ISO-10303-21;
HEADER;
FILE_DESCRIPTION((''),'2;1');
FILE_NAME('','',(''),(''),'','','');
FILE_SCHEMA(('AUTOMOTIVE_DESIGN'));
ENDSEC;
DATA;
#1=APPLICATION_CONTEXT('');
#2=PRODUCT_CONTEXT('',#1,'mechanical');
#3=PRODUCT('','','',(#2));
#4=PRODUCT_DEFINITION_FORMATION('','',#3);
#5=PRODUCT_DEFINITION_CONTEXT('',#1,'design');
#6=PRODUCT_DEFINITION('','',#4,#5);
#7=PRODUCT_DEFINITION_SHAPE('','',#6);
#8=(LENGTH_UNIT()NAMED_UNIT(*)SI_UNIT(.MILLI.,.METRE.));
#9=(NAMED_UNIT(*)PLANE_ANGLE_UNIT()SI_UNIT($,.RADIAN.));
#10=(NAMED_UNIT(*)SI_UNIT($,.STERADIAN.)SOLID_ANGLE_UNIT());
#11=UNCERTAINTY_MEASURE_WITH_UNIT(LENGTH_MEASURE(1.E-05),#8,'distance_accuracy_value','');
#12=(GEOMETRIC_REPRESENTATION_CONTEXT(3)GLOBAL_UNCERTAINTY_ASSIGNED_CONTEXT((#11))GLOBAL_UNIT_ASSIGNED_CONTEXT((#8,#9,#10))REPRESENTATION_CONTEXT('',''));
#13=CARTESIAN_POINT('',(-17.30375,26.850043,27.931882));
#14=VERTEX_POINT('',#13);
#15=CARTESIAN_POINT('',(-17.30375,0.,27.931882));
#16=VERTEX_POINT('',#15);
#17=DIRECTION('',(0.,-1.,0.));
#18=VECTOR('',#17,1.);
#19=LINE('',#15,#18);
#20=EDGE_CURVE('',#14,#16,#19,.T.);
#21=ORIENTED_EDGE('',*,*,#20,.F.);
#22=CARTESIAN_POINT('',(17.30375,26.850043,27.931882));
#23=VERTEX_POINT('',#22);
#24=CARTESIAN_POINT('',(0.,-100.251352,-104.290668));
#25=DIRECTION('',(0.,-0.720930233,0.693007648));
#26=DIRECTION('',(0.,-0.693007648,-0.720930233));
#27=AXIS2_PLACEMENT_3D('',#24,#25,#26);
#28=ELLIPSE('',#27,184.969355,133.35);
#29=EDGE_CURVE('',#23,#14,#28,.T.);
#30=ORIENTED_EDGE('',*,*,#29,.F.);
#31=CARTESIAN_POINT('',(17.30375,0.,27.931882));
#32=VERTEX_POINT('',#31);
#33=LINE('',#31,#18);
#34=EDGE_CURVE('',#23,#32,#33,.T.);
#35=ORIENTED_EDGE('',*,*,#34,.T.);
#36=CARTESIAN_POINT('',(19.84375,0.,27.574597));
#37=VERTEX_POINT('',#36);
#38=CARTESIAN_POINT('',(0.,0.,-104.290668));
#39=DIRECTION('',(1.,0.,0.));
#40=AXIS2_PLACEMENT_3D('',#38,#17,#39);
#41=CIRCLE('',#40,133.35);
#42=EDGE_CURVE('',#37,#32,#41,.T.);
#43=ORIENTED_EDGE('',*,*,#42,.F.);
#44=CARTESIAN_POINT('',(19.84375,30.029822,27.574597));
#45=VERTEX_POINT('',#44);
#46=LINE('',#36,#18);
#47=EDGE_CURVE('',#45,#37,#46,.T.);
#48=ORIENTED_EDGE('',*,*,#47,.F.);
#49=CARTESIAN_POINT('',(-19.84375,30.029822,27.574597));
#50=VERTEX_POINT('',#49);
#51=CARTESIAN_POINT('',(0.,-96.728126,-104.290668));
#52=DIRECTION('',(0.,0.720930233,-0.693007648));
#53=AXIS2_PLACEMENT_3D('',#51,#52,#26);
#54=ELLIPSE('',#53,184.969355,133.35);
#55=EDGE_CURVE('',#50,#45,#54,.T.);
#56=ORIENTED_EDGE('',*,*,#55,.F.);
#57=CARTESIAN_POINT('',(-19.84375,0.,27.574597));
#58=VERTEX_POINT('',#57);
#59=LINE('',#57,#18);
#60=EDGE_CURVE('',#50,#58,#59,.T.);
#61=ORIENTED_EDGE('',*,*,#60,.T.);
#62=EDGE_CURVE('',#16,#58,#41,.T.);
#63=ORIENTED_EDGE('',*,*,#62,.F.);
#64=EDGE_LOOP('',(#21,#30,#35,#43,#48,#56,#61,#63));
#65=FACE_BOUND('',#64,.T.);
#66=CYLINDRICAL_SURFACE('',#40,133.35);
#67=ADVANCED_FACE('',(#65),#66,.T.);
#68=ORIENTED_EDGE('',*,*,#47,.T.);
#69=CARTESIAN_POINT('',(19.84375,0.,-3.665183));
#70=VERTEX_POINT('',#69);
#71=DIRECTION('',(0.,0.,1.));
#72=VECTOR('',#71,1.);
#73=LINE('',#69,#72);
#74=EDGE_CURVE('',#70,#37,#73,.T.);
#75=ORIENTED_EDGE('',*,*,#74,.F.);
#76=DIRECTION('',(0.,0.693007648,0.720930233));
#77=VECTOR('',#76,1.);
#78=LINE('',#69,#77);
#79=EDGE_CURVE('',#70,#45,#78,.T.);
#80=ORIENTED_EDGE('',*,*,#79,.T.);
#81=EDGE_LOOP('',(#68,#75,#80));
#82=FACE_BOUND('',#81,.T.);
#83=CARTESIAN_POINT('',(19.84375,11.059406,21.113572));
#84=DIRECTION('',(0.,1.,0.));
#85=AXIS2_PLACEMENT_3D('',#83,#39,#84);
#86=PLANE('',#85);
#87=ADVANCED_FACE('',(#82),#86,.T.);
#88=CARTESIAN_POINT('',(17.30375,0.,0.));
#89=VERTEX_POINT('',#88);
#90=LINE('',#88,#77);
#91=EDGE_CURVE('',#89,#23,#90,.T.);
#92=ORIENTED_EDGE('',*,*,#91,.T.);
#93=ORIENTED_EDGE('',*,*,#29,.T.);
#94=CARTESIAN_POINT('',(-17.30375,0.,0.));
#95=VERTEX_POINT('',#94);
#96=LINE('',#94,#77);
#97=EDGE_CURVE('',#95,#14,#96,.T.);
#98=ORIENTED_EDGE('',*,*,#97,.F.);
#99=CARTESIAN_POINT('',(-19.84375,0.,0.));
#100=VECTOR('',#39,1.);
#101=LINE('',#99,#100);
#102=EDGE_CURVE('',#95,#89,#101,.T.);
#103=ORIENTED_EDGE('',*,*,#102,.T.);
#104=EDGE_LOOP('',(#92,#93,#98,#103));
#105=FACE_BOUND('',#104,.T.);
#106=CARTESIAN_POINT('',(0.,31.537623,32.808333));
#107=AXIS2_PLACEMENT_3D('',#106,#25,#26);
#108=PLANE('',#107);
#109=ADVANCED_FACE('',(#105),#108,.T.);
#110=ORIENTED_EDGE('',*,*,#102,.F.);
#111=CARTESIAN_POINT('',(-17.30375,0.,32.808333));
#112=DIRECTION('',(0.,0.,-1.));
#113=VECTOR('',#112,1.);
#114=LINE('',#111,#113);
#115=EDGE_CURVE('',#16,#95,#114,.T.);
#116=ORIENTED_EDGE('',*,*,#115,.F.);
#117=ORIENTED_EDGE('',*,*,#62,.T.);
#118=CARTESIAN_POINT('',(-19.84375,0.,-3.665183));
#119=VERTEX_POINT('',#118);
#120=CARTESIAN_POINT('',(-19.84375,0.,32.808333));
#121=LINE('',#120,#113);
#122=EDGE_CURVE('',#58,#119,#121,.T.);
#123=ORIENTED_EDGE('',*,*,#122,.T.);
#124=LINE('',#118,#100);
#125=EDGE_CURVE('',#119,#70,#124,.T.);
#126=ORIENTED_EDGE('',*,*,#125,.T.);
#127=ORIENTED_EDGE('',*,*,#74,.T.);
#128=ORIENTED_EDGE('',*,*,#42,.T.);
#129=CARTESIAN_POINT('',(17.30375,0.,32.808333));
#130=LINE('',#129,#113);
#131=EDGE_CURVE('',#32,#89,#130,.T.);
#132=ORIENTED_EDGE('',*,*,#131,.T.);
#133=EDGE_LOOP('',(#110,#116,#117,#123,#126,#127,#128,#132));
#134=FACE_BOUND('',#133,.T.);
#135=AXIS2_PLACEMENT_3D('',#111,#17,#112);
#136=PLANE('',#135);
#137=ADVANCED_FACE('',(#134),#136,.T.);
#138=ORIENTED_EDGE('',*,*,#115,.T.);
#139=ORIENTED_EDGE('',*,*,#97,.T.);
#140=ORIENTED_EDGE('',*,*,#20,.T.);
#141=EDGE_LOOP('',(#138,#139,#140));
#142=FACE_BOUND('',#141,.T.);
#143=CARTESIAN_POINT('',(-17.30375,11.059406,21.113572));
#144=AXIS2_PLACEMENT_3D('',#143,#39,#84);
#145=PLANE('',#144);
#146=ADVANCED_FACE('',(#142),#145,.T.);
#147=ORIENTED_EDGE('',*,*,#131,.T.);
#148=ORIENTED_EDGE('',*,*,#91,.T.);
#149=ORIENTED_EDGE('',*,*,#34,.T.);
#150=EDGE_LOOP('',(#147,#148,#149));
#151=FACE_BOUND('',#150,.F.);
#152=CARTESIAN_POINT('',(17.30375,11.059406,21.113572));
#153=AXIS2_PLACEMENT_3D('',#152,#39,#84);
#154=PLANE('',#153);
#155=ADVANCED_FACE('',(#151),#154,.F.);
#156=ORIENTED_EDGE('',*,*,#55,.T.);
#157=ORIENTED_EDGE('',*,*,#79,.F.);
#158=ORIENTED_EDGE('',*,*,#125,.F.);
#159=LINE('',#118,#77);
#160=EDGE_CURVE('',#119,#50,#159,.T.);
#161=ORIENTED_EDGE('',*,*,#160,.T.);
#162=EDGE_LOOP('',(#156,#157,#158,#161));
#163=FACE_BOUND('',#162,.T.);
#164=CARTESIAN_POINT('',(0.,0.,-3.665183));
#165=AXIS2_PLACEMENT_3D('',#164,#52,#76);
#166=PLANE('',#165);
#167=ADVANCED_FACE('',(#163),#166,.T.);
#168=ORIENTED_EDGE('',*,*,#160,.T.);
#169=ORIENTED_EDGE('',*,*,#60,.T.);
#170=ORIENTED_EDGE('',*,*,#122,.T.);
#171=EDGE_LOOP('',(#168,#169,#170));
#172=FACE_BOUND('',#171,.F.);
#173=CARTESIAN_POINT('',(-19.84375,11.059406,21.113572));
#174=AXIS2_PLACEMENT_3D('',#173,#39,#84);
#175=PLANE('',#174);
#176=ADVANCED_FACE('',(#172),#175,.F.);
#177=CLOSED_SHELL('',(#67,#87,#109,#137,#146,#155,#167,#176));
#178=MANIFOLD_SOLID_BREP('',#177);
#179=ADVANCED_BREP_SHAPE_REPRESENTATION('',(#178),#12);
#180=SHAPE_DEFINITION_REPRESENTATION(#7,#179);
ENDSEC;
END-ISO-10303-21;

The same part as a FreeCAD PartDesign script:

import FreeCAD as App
import Part
import Sketcher

V = App.Vector
Q = App.Units.Quantity

doc = App.newDocument("Part")
body = doc.addObject("PartDesign::Body", "Body")

# Sketch on YZ plane
sketch1 = body.newObject("Sketcher::SketchObject", "Sketch")
sketch1.AttachmentSupport = (doc.getObject("YZ_Plane"), [""])
sketch1.MapMode = "FlatFace"
sketch1.addGeometry([
    Part.LineSegment(V(31.5, 32.8, 0), V(0, 0, 0)),
    Part.LineSegment(V(0, 0, 0), V(0, -3.7, 0)),
    Part.LineSegment(V(0, -3.7, 0), V(35.1, 32.8, 0)),
    Part.LineSegment(V(35.1, 32.8, 0), V(31.5, 32.8, 0)),
], False)
sketch1.addConstraint([
    Sketcher.Constraint("Coincident", 0, 2, 1, 1),
    Sketcher.Constraint("Coincident", 1, 2, 2, 1),
    Sketcher.Constraint("Coincident", 2, 2, 3, 1),
    Sketcher.Constraint("Coincident", 3, 2, 0, 1),
    Sketcher.Constraint("Vertical", 1),
    Sketcher.Constraint("Horizontal", 3),
    Sketcher.Constraint("Coincident", 0, 2, -1, 1),
    Sketcher.Constraint("Parallel", 0, 2),
    Sketcher.Constraint("DistanceX", 3, 2, 3, 1, Q("3.523226 mm")),
    Sketcher.Constraint("DistanceY", 1, 2, 1, 1, Q("3.665183 mm")),
    Sketcher.Constraint("DistanceX", -1, 1, 2, 2, Q("35.060849 mm")),
])
pad1 = body.newObject("PartDesign::Pad", "Pad")
pad1.Profile = sketch1
pad1.Type = "TwoLengths"
pad1.Length = Q("0.78125 in")
pad1.Length2 = Q("0.78125 in")

# Sketch on YZ plane
sketch2 = body.newObject("Sketcher::SketchObject", "Sketch001")
sketch2.AttachmentSupport = (doc.getObject("YZ_Plane"), [""])
sketch2.MapMode = "FlatFace"
sketch2.AttachmentOffset = App.Placement(V(0, 0, 17.30375), App.Rotation())
sketch2.addGeometry([
    Part.LineSegment(V(0, 33, 0), V(0, 0, 0)),
    Part.LineSegment(V(0, 0, 0), V(32, 33, 0)),
    Part.LineSegment(V(32, 33, 0), V(0, 33, 0)),
], False)
sketch2.addConstraint([
    Sketcher.Constraint("Coincident", 0, 2, 1, 1),
    Sketcher.Constraint("Coincident", 1, 2, 2, 1),
    Sketcher.Constraint("Coincident", 2, 2, 0, 1),
    Sketcher.Constraint("Vertical", 0),
    Sketcher.Constraint("Horizontal", 2),
    Sketcher.Constraint("Coincident", 0, 2, -1, 1),
    Sketcher.Constraint("DistanceX", 2, 2, 2, 1, Q("31.537623 mm")),
    Sketcher.Constraint("DistanceY", 0, 2, 0, 1, Q("32.808333 mm")),
])
pad2 = body.newObject("PartDesign::Pad", "Pad001")
pad2.Profile = sketch2
pad2.Length = Q("0.1 in")

# Sketch on YZ plane
sketch3 = body.newObject("Sketcher::SketchObject", "Sketch002")
sketch3.AttachmentSupport = (doc.getObject("YZ_Plane"), [""])
sketch3.MapMode = "FlatFace"
sketch3.AttachmentOffset = App.Placement(V(0, 0, -17.30375), App.Rotation())
sketch3.addGeometry([
    Part.LineSegment(V(0, 33, 0), V(0, 0, 0)),
    Part.LineSegment(V(0, 0, 0), V(32, 33, 0)),
    Part.LineSegment(V(32, 33, 0), V(0, 33, 0)),
], False)
sketch3.addConstraint([
    Sketcher.Constraint("Coincident", 0, 2, 1, 1),
    Sketcher.Constraint("Coincident", 1, 2, 2, 1),
    Sketcher.Constraint("Coincident", 2, 2, 0, 1),
    Sketcher.Constraint("Vertical", 0),
    Sketcher.Constraint("Horizontal", 2),
    Sketcher.Constraint("Coincident", 0, 2, -1, 1),
    Sketcher.Constraint("DistanceX", 2, 2, 2, 1, Q("31.537623 mm")),
    Sketcher.Constraint("DistanceY", 0, 2, 0, 1, Q("32.808333 mm")),
])
pad3 = body.newObject("PartDesign::Pad", "Pad002")
pad3.Profile = sketch3
pad3.Length = Q("0.1 in")
pad3.Reversed = True

# Sketch on XZ plane
sketch4 = body.newObject("Sketcher::SketchObject", "Sketch003")
sketch4.AttachmentSupport = (doc.getObject("XZ_Plane"), [""])
sketch4.MapMode = "FlatFace"
sketch4.addGeometry([
    Part.Circle(V(0, -104, 0), V(0, 0, 1), 159),
    Part.Circle(V(0, -104, 0), V(0, 0, 1), 133),
], False)
sketch4.addConstraint([
    Sketcher.Constraint("Coincident", 1, 3, 0, 3),
    Sketcher.Constraint("PointOnObject", 0, 3, -2),
    Sketcher.Constraint("Diameter", 1, Q("10.5 in")),
    Sketcher.Constraint("Diameter", 0, Q("318.495557 mm")),
    Sketcher.Constraint("DistanceY", 0, 3, -1, 1, Q("104.290668 mm")),
])
pocket1 = body.newObject("PartDesign::Pocket", "Pocket")
pocket1.Profile = sketch4
pocket1.Length = Q("5 in")

doc.recompute()
